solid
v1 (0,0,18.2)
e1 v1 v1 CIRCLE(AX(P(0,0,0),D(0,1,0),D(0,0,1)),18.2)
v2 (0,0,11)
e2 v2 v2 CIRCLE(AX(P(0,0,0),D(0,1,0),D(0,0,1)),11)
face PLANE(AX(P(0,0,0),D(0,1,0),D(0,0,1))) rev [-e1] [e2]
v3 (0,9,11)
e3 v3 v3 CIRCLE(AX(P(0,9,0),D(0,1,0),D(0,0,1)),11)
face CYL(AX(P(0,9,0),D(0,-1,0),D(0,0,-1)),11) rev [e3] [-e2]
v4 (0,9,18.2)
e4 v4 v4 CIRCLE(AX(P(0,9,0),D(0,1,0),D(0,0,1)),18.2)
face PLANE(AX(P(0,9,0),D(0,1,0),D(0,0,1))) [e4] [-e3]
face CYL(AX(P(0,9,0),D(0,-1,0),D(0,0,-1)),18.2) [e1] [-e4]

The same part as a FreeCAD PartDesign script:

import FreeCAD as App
import Part
import Sketcher
Q = App.Units.Quantity

doc = App.newDocument("Part")
body = doc.addObject("PartDesign::Body", "Body")

# Sketch on XZ plane
sketch1 = doc.addObject("Sketcher::SketchObject", "Sketch")
body.addObject(sketch1)
sketch1.AttachmentSupport = (doc.XZ_Plane, [""])
sketch1.MapMode = "FlatFace"
sketch1.addGeometry(Part.Circle(App.Vector(0, 0, 0), App.Vector(0, 0, 1), 18.2), False)
sketch1.addGeometry(Part.Circle(App.Vector(0, 0, 0), App.Vector(0, 0, 1), 11), False)
sketch1.addConstraint(Sketcher.Constraint("Coincident", 0, 3, -1, 1))
sketch1.addConstraint(Sketcher.Constraint("Coincident", 1, 3, -1, 1))
sketch1.addConstraint(Sketcher.Constraint("Diameter", 1, Q("22 mm")))
sketch1.addConstraint(Sketcher.Constraint("Diameter", 0, Q("36.4 mm")))
pad1 = doc.addObject("PartDesign::Pad", "Pad")
body.addObject(pad1)
pad1.Profile = sketch1
pad1.Length = 9
pad1.Reversed = True

doc.recompute()
